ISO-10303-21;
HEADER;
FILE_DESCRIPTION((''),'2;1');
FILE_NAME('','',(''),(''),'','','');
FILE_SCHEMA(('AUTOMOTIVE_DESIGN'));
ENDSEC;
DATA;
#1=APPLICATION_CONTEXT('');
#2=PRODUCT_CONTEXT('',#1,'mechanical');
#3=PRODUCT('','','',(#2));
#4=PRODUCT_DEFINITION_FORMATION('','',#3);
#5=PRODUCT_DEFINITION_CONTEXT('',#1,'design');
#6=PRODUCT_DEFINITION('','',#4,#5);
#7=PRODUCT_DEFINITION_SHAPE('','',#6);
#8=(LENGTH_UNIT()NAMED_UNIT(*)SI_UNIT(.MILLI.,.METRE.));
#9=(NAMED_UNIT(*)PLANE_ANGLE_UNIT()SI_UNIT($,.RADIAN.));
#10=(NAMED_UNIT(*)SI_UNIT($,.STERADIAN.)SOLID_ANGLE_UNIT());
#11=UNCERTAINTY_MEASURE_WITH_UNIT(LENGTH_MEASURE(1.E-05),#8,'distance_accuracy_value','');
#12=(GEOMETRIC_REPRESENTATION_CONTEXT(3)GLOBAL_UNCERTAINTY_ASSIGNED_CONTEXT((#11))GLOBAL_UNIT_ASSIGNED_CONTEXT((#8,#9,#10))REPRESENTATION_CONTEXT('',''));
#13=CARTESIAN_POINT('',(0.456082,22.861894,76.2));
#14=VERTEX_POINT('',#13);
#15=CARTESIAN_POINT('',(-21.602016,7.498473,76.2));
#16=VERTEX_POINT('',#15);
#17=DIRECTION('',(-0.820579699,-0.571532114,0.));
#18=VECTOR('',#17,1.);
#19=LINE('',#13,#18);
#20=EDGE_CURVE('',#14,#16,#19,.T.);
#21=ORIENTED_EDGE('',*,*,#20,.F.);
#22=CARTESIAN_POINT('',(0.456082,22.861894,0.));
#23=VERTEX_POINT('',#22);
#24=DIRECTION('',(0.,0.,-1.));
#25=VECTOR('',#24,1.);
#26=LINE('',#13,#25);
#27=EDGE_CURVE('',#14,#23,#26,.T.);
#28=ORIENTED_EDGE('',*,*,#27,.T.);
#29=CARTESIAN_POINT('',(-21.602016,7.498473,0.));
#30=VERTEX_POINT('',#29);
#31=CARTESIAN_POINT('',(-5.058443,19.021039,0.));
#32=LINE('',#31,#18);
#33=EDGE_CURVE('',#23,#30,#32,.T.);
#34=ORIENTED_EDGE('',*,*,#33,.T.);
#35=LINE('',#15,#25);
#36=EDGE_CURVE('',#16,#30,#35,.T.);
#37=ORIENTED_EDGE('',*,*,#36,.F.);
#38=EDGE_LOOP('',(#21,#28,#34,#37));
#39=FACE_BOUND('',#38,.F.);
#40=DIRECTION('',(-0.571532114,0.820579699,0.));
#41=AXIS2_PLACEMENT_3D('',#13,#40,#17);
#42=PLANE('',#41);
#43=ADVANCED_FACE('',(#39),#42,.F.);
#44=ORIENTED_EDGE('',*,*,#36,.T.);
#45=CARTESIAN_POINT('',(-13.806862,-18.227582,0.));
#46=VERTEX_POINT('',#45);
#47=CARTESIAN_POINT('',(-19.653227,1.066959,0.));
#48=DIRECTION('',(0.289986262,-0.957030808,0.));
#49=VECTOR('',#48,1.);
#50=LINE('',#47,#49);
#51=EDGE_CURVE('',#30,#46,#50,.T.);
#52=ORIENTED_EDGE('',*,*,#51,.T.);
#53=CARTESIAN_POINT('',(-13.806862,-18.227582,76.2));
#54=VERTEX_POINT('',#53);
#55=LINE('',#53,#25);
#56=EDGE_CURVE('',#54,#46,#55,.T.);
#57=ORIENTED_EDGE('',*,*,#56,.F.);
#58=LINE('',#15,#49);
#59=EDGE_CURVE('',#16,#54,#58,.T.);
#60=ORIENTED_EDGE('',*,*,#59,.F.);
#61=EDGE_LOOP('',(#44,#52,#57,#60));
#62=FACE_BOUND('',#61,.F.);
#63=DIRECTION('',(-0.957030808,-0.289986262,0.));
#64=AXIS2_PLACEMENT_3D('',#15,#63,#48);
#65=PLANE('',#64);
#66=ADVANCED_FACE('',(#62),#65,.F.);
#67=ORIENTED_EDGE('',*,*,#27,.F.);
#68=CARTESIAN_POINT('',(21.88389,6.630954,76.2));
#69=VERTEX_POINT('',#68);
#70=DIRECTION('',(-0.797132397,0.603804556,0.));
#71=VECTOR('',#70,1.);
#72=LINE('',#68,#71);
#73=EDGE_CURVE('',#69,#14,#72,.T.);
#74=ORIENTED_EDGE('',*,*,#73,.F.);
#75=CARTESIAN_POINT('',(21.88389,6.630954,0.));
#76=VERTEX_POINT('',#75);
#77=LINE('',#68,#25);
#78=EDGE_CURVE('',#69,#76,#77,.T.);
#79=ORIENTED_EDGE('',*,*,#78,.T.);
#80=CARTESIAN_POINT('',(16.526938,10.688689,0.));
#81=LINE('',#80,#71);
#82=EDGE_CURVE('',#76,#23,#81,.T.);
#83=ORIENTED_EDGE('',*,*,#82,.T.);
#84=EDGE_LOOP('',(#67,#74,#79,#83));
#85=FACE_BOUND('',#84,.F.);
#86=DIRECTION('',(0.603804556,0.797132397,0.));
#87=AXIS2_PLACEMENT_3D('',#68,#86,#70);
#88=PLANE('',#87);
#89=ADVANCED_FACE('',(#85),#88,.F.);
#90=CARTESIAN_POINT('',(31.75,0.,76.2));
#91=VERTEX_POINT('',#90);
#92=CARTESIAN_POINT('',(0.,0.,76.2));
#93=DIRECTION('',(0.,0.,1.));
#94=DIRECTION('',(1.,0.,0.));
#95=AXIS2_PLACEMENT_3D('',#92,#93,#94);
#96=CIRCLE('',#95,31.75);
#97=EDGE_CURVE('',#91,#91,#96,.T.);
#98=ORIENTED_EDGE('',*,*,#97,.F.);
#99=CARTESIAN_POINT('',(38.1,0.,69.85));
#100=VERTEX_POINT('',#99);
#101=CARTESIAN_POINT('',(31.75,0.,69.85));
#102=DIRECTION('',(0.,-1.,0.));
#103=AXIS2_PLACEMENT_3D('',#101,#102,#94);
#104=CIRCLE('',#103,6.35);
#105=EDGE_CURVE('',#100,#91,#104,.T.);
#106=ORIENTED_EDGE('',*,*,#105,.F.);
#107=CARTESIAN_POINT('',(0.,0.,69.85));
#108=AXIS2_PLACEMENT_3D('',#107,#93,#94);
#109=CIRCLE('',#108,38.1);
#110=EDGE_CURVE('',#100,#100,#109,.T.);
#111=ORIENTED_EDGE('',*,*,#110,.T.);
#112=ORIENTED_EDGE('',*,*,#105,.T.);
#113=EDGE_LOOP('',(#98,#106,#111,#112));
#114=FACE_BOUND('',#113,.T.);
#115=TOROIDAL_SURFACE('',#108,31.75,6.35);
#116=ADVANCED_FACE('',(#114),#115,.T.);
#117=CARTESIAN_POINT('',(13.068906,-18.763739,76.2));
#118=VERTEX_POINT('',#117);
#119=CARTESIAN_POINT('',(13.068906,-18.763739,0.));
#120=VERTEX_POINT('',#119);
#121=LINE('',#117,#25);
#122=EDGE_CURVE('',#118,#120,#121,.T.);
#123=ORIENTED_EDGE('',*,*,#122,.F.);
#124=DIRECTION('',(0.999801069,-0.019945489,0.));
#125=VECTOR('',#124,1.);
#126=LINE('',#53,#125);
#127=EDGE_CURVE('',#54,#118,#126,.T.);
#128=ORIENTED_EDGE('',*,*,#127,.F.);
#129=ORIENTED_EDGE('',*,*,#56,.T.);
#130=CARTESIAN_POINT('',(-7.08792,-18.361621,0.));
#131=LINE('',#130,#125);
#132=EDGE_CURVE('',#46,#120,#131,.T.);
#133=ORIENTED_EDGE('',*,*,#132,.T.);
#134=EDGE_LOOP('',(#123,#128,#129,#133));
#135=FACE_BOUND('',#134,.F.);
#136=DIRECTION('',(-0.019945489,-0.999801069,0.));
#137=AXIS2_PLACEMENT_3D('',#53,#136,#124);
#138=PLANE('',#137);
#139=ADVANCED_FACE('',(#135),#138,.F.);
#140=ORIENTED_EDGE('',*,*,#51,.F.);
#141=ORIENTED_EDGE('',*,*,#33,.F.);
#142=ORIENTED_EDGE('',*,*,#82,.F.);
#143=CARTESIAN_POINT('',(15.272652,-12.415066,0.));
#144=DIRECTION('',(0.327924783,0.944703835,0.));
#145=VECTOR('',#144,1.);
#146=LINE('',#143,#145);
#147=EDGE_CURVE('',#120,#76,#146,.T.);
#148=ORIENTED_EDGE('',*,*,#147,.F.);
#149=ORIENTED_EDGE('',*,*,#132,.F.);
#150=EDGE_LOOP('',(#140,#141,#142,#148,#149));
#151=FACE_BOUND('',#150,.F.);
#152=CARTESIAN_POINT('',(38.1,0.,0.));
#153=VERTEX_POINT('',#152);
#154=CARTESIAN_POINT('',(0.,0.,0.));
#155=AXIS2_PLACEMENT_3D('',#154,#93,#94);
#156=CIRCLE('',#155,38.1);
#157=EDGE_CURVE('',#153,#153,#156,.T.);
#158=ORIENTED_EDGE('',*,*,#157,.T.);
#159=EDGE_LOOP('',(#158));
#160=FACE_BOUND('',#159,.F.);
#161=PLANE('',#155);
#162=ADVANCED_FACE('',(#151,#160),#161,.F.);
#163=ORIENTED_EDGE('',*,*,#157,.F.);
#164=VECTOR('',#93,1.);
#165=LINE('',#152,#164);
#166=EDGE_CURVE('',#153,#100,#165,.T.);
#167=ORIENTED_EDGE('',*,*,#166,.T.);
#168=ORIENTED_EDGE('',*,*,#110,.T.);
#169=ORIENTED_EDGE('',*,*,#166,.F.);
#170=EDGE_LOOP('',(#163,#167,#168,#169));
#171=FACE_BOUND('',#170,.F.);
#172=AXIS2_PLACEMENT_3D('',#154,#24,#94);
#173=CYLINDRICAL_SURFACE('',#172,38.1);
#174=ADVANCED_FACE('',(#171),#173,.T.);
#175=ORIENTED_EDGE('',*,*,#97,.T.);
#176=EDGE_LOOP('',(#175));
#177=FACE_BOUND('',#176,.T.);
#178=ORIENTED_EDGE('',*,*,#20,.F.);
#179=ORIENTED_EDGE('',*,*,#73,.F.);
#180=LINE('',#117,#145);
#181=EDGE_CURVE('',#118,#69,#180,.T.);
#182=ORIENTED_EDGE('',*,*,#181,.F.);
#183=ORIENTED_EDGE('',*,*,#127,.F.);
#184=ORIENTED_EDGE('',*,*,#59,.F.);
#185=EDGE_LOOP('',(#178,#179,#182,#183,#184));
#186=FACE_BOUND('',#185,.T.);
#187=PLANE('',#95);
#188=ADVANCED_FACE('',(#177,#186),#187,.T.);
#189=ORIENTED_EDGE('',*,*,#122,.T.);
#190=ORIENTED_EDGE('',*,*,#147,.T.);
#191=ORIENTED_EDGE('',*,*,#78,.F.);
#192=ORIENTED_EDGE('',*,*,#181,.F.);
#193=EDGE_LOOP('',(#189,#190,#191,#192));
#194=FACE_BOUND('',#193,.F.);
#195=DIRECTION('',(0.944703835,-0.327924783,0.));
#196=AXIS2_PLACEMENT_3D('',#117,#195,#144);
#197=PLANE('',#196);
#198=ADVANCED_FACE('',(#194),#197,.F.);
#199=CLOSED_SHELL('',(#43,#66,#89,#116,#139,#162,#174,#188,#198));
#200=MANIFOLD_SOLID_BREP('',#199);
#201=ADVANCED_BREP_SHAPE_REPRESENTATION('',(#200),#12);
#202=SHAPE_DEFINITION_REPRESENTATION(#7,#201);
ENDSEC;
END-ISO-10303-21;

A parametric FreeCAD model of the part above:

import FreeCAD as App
import Part
import Sketcher

V = App.Vector
Q = App.Units.Quantity


def edges_at(feature, points):
    """Names of the edges that pass closest to the given points."""
    edges = feature.Shape.Edges
    near = lambda p: min(range(len(edges)), key=lambda i: edges[i].distToShape(Part.Vertex(*p))[0])
    return sorted({f"Edge{near(p) + 1}" for p in points})

doc = App.newDocument("Part")
body = doc.addObject("PartDesign::Body", "Body")

# Sketch on XY plane
sketch1 = body.newObject("Sketcher::SketchObject", "Sketch")
sketch1.AttachmentSupport = (doc.getObject("XY_Plane"), [""])
sketch1.MapMode = "FlatFace"
sketch1.addGeometry(Part.Circle(V(0, 0, 0), V(0, 0, 1), 38), False)
sketch1.addConstraint([
    Sketcher.Constraint("Coincident", 0, 3, -1, 1),
    Sketcher.Constraint("Diameter", 0, Q("3 in")),
])
pad1 = body.newObject("PartDesign::Pad", "Pad")
pad1.Profile = sketch1
pad1.Length = Q("3 in")

# Sketch on XY plane
sketch2 = body.newObject("Sketcher::SketchObject", "Sketch001")
sketch2.AttachmentSupport = (doc.getObject("XY_Plane"), [""])
sketch2.MapMode = "FlatFace"
sketch2.AttachmentOffset = App.Placement(V(0, 0, 3 * 25.4), App.Rotation())
sketch2.addGeometry([
    Part.LineSegment(V(0, 23, 0), V(-22, 7, 0)),  # 0
    Part.LineSegment(V(-22, 7, 0), V(-14, -18, 0)),  # 1
    Part.LineSegment(V(-14, -18, 0), V(13, -19, 0)),  # 2
    Part.LineSegment(V(13, -19, 0), V(22, 7, 0)),  # 3
    Part.LineSegment(V(22, 7, 0), V(0, 23, 0)),  # 4
], False)
sketch2.addConstraint([
    Sketcher.Constraint("Coincident", 0, 2, 1, 1),
    Sketcher.Constraint("Coincident", 1, 2, 2, 1),
    Sketcher.Constraint("Coincident", 2, 2, 3, 1),
    Sketcher.Constraint("Coincident", 3, 2, 4, 1),
    Sketcher.Constraint("Coincident", 4, 2, 0, 1),
    Sketcher.Constraint("Equal", 0, 1),
    Sketcher.Constraint("Equal", 1, 2),
    Sketcher.Constraint("Equal", 2, 3),
    Sketcher.Constraint("Equal", 3, 4),
    Sketcher.Constraint("DistanceY", 2, 2, -1, 1, Q("18.763739 mm")),
    Sketcher.Constraint("DistanceX", -1, 1, 3, 2, Q("21.88389 mm")),
    Sketcher.Constraint("DistanceX", 1, 2, 2, 2, Q("26.875768 mm")),
    Sketcher.Constraint("DistanceX", 0, 2, 2, 2, Q("34.670922 mm")),
    Sketcher.Constraint("DistanceY", 3, 2, 0, 2, Q("0.867519 mm")),
    Sketcher.Constraint("DistanceX", 4, 2, 3, 2, Q("21.427808 mm")),
])
pocket1 = body.newObject("PartDesign::Pocket", "Pocket")
pocket1.Profile = sketch2
pocket1.Type = "ThroughAll"
doc.recompute()

fillet = body.newObject("PartDesign::Fillet", "Fillet")
fillet.Base = (pocket1, edges_at(pocket1, [(-38.1, 0, 76.2)]))
fillet.Radius = Q("0.25 in")

doc.recompute()
